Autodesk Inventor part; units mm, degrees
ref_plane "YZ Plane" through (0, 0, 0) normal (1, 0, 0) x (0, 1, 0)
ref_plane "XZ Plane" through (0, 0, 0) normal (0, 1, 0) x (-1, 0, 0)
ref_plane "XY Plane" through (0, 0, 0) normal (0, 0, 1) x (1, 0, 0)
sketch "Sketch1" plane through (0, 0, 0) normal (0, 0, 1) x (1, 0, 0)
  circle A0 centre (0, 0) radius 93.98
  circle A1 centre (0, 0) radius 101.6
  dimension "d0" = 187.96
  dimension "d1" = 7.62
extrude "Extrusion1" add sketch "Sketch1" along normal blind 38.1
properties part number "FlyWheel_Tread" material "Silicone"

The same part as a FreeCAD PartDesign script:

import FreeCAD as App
import Part
import Sketcher
Q = App.Units.Quantity

doc = App.newDocument("Part")
body = doc.addObject("PartDesign::Body", "Body")

sketch1 = body.newObject("Sketcher::SketchObject", "Sketch")
sketch1.AttachmentSupport = (doc.getObject("XY_Plane"), [""])
sketch1.MapMode = "FlatFace"
sketch1.addGeometry([
    Part.Circle(App.Vector(0, 0, 0), App.Vector(0, 0, 1), 102),
    Part.Circle(App.Vector(0, 0, 0), App.Vector(0, 0, 1), 94),
], False)
sketch1.addConstraint([
    Sketcher.Constraint("Coincident", 0, 3, -1, 1),
    Sketcher.Constraint("Coincident", 1, 3, -1, 1),
    Sketcher.Constraint("Diameter", 1, Q("7.4 in")),
    Sketcher.Constraint("Diameter", 0, Q("8 in")),
])
pad1 = body.newObject("PartDesign::Pad", "Pad")
pad1.Profile = sketch1
pad1.Length = Q("1.5 in")

doc.recompute()
